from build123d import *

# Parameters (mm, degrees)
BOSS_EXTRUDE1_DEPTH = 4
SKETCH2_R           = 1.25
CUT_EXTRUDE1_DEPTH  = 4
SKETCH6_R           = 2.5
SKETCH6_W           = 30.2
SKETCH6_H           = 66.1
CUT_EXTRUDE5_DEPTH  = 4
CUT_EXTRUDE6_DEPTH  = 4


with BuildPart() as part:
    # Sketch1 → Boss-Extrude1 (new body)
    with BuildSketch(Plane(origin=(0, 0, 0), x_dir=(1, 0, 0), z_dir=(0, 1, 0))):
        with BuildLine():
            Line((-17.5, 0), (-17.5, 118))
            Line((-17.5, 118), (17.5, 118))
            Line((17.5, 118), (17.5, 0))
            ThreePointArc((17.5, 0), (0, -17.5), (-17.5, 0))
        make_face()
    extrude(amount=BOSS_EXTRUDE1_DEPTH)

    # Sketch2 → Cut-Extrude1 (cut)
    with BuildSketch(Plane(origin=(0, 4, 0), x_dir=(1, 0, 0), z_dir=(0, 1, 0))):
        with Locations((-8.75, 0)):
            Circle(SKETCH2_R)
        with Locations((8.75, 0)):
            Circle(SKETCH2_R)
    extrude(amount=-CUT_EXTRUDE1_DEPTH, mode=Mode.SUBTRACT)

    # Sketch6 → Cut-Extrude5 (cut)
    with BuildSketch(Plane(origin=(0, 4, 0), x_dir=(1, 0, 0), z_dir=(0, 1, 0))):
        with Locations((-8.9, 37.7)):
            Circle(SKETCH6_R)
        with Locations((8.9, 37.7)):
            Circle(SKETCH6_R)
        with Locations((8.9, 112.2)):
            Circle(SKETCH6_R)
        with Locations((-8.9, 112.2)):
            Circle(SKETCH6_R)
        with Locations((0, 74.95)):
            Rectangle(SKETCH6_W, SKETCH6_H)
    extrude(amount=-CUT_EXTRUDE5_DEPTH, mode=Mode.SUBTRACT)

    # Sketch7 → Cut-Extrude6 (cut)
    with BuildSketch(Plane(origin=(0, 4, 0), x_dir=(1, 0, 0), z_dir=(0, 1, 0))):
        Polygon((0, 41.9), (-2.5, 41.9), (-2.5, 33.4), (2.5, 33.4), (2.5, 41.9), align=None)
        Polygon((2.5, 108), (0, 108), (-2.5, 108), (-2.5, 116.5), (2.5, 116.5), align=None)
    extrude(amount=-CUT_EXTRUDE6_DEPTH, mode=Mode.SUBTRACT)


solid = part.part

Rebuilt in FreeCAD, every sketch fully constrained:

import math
import FreeCAD as App
import Part
import Sketcher
from FreeCAD import Vector
Q = App.Units.Quantity


def add_polygon(sketch, points):
    """Adds a closed chain of lines whose ends are joined by coincident constraints."""
    first, n = sketch.GeometryCount, len(points)
    for a, b in zip(points, points[1:] + points[:1]):
        sketch.addGeometry(Part.LineSegment(App.Vector(*a, 0), App.Vector(*b, 0)), False)
    for i in range(n):
        sketch.addConstraint(Sketcher.Constraint("Coincident", first + i, 2, first + (i + 1) % n, 1))

doc = App.newDocument("Part")
params = doc.addObject("Spreadsheet::Sheet", "Params")
for row, (alias, value) in enumerate([
    ("sketch1_radius", "17.5 mm"),
    ("sketch1_height", "118 mm"),
    ("pad1_length", "4 mm"),
    ("sketch2_diameter", "2.5 mm"),
    ("pocket1_length", "4 mm"),
    ("sketch3_diameter", "5 mm"),
    ("sketch3_width", "30.2 mm"),
    ("sketch3_height", "66.1 mm"),
    ("pocket2_length", "4 mm"),
    ("sketch4_width", "5 mm"),
    ("sketch4_height", "8.5 mm"),
    ("pocket3_length", "4 mm"),
], start=1):
    params.set(f"A{row}", alias)
    params.set(f"B{row}", "=" + value)
    params.setAlias(f"B{row}", alias)

body = doc.addObject("PartDesign::Body", "Body")

# Sketch on XZ plane
sketch1 = body.newObject("Sketcher::SketchObject", "Sketch")
sketch1.AttachmentSupport = (doc.getObject("XZ_Plane"), [""])
sketch1.MapMode = "FlatFace"
sketch1.addGeometry(Part.LineSegment(Vector(-18, -118, 0), Vector(-18, 0, 0)), False)
sketch1.addGeometry(Part.ArcOfCircle(Part.Circle(Vector(0, 0, 0), Vector(0, 0, 1), 18), math.radians(0), math.radians(180)), False)
sketch1.addGeometry(Part.LineSegment(Vector(18, 0, 0), Vector(18, -118, 0)), False)
sketch1.addGeometry(Part.LineSegment(Vector(18, -118, 0), Vector(-18, -118, 0)), False)
sketch1.addConstraint(Sketcher.Constraint("Tangent", 0, 2, 1, 2))
sketch1.addConstraint(Sketcher.Constraint("Tangent", 1, 1, 2, 1))
sketch1.addConstraint(Sketcher.Constraint("Coincident", 2, 2, 3, 1))
sketch1.addConstraint(Sketcher.Constraint("Coincident", 3, 2, 0, 1))
sketch1.addConstraint(Sketcher.Constraint("Vertical", 0))
sketch1.addConstraint(Sketcher.Constraint("Vertical", 2))
sketch1.addConstraint(Sketcher.Constraint("Horizontal", 3))
sketch1.addConstraint(Sketcher.Constraint("Coincident", 1, 3, -1, 1))
sketch1.addConstraint(Sketcher.Constraint("Radius", 1, Q("17.5 mm")))
sketch1.addConstraint(Sketcher.Constraint("DistanceY", 0, 1, 0, 2, Q("118 mm")))
sketch1.setExpression("Constraints[8]", "Params.sketch1_radius")
sketch1.setExpression("Constraints[9]", "Params.sketch1_height")
pad1 = body.newObject("PartDesign::Pad", "Pad")
pad1.Profile = sketch1
pad1.setExpression("Length", "Params.pad1_length")
pad1.Reversed = True

# Sketch on XZ plane
sketch2 = body.newObject("Sketcher::SketchObject", "Sketch001")
sketch2.AttachmentSupport = (doc.getObject("XZ_Plane"), [""])
sketch2.MapMode = "FlatFace"
sketch2.AttachmentOffset = App.Placement(Vector(0, 0, -4), App.Rotation())
sketch2.addGeometry(Part.Circle(Vector(-8.8, 0, 0), Vector(0, 0, 1), 1.2), False)
sketch2.addGeometry(Part.Circle(Vector(8.8, 0, 0), Vector(0, 0, 1), 1.2), False)
sketch2.addConstraint(Sketcher.Constraint("Equal", 0, 1))
sketch2.addConstraint(Sketcher.Constraint("Symmetric", 0, 3, 1, 3, -1, 1))
sketch2.addConstraint(Sketcher.Constraint("PointOnObject", 0, 3, -1))
sketch2.addConstraint(Sketcher.Constraint("Diameter", 0, Q("2.5 mm")))
sketch2.addConstraint(Sketcher.Constraint("DistanceX", 0, 3, 1, 3, Q("17.5 mm")))
sketch2.setExpression("Constraints[3]", "Params.sketch2_diameter")
pocket1 = body.newObject("PartDesign::Pocket", "Pocket")
pocket1.Profile = sketch2
pocket1.setExpression("Length", "Params.pocket1_length")
pocket1.Reversed = True

# Sketch on XZ plane
sketch3 = body.newObject("Sketcher::SketchObject", "Sketch002")
sketch3.AttachmentSupport = (doc.getObject("XZ_Plane"), [""])
sketch3.MapMode = "FlatFace"
sketch3.AttachmentOffset = App.Placement(Vector(0, 0, -4), App.Rotation())
sketch3.addGeometry(Part.Circle(Vector(-8.9, -37.7, 0), Vector(0, 0, 1), 2.5), False)  # 0
sketch3.addGeometry(Part.Circle(Vector(8.9, -37.7, 0), Vector(0, 0, 1), 2.5), False)  # 1
sketch3.addGeometry(Part.Circle(Vector(8.9, -112.2, 0), Vector(0, 0, 1), 2.5), False)  # 2
sketch3.addGeometry(Part.Circle(Vector(-8.9, -112.2, 0), Vector(0, 0, 1), 2.5), False)  # 3
add_polygon(sketch3, [(-15.1, -108), (-15.1, -41.9), (15.1, -41.9), (15.1, -108)])  # lines 4-7
sketch3.addConstraint(Sketcher.Constraint("Vertical", 4))
sketch3.addConstraint(Sketcher.Constraint("Horizontal", 5))
sketch3.addConstraint(Sketcher.Constraint("Vertical", 6))
sketch3.addConstraint(Sketcher.Constraint("Horizontal", 7))
sketch3.addConstraint(Sketcher.Constraint("Equal", 0, 1))
sketch3.addConstraint(Sketcher.Constraint("Equal", 1, 2))
sketch3.addConstraint(Sketcher.Constraint("Equal", 2, 3))
sketch3.addConstraint(Sketcher.Constraint("Symmetric", 0, 3, 1, 3, -2))
sketch3.addConstraint(Sketcher.Constraint("Symmetric", 2, 3, 3, 3, -2))
sketch3.addConstraint(Sketcher.Constraint("Vertical", 1, 3, 2, 3))
sketch3.addConstraint(Sketcher.Constraint("Diameter", 0, Q("5 mm")))
sketch3.addConstraint(Sketcher.Constraint("DistanceX", 5, 1, 5, 2, Q("30.2 mm")))
sketch3.addConstraint(Sketcher.Constraint("DistanceY", 4, 1, 4, 2, Q("66.1 mm")))
sketch3.addConstraint(Sketcher.Constraint("DistanceY", 6, 2, -1, 1, Q("108 mm")))
sketch3.addConstraint(Sketcher.Constraint("DistanceX", 4, 2, 1, 3, Q("24 mm")))
sketch3.addConstraint(Sketcher.Constraint("DistanceX", 0, 3, 5, 2, Q("24 mm")))
sketch3.addConstraint(Sketcher.Constraint("DistanceY", 0, 3, -1, 1, Q("37.7 mm")))
sketch3.addConstraint(Sketcher.Constraint("DistanceY", 2, 3, -1, 1, Q("112.2 mm")))
sketch3.setExpression("Constraints[14]", "Params.sketch3_diameter")
sketch3.setExpression("Constraints[15]", "Params.sketch3_width")
sketch3.setExpression("Constraints[16]", "Params.sketch3_height")
pocket2 = body.newObject("PartDesign::Pocket", "Pocket001")
pocket2.Profile = sketch3
pocket2.setExpression("Length", "Params.pocket2_length")
pocket2.Reversed = True

# Sketch on XZ plane
sketch4 = body.newObject("Sketcher::SketchObject", "Sketch003")
sketch4.AttachmentSupport = (doc.getObject("XZ_Plane"), [""])
sketch4.MapMode = "FlatFace"
sketch4.AttachmentOffset = App.Placement(Vector(0, 0, -4), App.Rotation())
add_polygon(sketch4, [(-2, -42), (-2, -33), (2, -33), (2, -42)])  # lines 0-3
add_polygon(sketch4, [(-2, -108), (2, -108), (2, -116), (-2, -116)])  # lines 4-7
sketch4.addConstraint(Sketcher.Constraint("Vertical", 0))
sketch4.addConstraint(Sketcher.Constraint("Horizontal", 1))
sketch4.addConstraint(Sketcher.Constraint("Vertical", 2))
sketch4.addConstraint(Sketcher.Constraint("Horizontal", 3))
sketch4.addConstraint(Sketcher.Constraint("Horizontal", 4))
sketch4.addConstraint(Sketcher.Constraint("Vertical", 5))
sketch4.addConstraint(Sketcher.Constraint("Horizontal", 6))
sketch4.addConstraint(Sketcher.Constraint("Vertical", 7))
sketch4.addConstraint(Sketcher.Constraint("Vertical", 2, 2, 4, 2))
sketch4.addConstraint(Sketcher.Constraint("Vertical", 3, 2, 6, 2))
sketch4.addConstraint(Sketcher.Constraint("Equal", 2, 5))
sketch4.addConstraint(Sketcher.Constraint("DistanceX", 1, 1, 1, 2, Q("5 mm")))
sketch4.addConstraint(Sketcher.Constraint("DistanceY", 0, 1, 0, 2, Q("8.5 mm")))
sketch4.addConstraint(Sketcher.Constraint("DistanceY", 4, 2, -1, 1, Q("108 mm")))
sketch4.addConstraint(Sketcher.Constraint("DistanceX", 0, 2, -1, 1, Q("2.5 mm")))
sketch4.addConstraint(Sketcher.Constraint("DistanceY", 0, 2, -1, 1, Q("33.4 mm")))
sketch4.setExpression("Constraints[19]", "Params.sketch4_width")
sketch4.setExpression("Constraints[20]", "Params.sketch4_height")
pocket3 = body.newObject("PartDesign::Pocket", "Pocket002")
pocket3.Profile = sketch4
pocket3.setExpression("Length", "Params.pocket3_length")
pocket3.Reversed = True

doc.recompute()
